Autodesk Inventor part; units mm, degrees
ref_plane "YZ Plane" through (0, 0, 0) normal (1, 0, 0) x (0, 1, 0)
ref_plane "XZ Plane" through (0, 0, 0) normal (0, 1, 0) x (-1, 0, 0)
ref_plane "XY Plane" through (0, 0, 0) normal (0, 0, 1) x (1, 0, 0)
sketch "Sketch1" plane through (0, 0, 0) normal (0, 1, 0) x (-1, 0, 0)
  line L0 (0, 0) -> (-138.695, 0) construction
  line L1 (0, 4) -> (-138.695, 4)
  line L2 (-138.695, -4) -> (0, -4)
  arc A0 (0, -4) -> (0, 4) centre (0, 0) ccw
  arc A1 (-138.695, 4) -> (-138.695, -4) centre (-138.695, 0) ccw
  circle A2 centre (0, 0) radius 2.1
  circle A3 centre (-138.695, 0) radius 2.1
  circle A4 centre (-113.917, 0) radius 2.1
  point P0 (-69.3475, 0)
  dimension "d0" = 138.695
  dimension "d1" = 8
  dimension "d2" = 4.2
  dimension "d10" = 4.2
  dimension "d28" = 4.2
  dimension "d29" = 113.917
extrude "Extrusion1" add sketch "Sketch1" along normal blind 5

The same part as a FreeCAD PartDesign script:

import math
import FreeCAD as App
import Part
import Sketcher
from FreeCAD import Vector

doc = App.newDocument("Part")
body = doc.addObject("PartDesign::Body", "Body")

# Sketch on XZ plane
sketch1 = doc.addObject("Sketcher::SketchObject", "Sketch")
body.addObject(sketch1)
sketch1.AttachmentSupport = (doc.XZ_Plane, [""])
sketch1.MapMode = "FlatFace"
sketch1.addGeometry([
    Part.ArcOfCircle(Part.Circle(Vector(0, 0, 0), Vector(0, 0, 1), 4), math.radians(90), math.radians(270)),  # 0
    Part.LineSegment(Vector(0, 4, 0), Vector(138.7, 4, 0)),  # 1
    Part.ArcOfCircle(Part.Circle(Vector(138.7, 0, 0), Vector(0, 0, 1), 4), math.radians(-90), math.radians(90)),  # 2
    Part.LineSegment(Vector(138.7, -4, 0), Vector(0, -4, 0)),  # 3
    Part.Circle(Vector(138.7, 0, 0), Vector(0, 0, 1), 2.1),  # 4
    Part.Circle(Vector(113.9, 0, 0), Vector(0, 0, 1), 2.1),  # 5
    Part.Circle(Vector(0, 0, 0), Vector(0, 0, 1), 2.1),  # 6
], False)
sketch1.addConstraint([
    Sketcher.Constraint("Tangent", 0, 1, 1, 1),
    Sketcher.Constraint("Tangent", 1, 2, 2, 2),
    Sketcher.Constraint("Tangent", 2, 1, 3, 1),
    Sketcher.Constraint("Tangent", 3, 2, 0, 2),
    Sketcher.Constraint("Horizontal", 1),
    Sketcher.Constraint("Horizontal", 3),
    Sketcher.Constraint("Coincident", 0, 3, -1, 1),
    Sketcher.Constraint("Coincident", 6, 3, -1, 1),
    Sketcher.Constraint("Coincident", 4, 3, 2, 3),
    Sketcher.Constraint("Equal", 4, 5),
    Sketcher.Constraint("Equal", 5, 6),
    Sketcher.Constraint("PointOnObject", 5, 3, -1),
    Sketcher.Constraint("Radius", 0, 4.0),
    Sketcher.Constraint("Diameter", 4, 4.2),
    Sketcher.Constraint("DistanceX", 1, 1, 1, 2, 138.695),
    Sketcher.Constraint("DistanceX", -1, 1, 5, 3, 113.917),
])
pad1 = doc.addObject("PartDesign::Pad", "Pad")
body.addObject(pad1)
pad1.Profile = sketch1
pad1.Length = 5
pad1.Reversed = True

doc.recompute()
